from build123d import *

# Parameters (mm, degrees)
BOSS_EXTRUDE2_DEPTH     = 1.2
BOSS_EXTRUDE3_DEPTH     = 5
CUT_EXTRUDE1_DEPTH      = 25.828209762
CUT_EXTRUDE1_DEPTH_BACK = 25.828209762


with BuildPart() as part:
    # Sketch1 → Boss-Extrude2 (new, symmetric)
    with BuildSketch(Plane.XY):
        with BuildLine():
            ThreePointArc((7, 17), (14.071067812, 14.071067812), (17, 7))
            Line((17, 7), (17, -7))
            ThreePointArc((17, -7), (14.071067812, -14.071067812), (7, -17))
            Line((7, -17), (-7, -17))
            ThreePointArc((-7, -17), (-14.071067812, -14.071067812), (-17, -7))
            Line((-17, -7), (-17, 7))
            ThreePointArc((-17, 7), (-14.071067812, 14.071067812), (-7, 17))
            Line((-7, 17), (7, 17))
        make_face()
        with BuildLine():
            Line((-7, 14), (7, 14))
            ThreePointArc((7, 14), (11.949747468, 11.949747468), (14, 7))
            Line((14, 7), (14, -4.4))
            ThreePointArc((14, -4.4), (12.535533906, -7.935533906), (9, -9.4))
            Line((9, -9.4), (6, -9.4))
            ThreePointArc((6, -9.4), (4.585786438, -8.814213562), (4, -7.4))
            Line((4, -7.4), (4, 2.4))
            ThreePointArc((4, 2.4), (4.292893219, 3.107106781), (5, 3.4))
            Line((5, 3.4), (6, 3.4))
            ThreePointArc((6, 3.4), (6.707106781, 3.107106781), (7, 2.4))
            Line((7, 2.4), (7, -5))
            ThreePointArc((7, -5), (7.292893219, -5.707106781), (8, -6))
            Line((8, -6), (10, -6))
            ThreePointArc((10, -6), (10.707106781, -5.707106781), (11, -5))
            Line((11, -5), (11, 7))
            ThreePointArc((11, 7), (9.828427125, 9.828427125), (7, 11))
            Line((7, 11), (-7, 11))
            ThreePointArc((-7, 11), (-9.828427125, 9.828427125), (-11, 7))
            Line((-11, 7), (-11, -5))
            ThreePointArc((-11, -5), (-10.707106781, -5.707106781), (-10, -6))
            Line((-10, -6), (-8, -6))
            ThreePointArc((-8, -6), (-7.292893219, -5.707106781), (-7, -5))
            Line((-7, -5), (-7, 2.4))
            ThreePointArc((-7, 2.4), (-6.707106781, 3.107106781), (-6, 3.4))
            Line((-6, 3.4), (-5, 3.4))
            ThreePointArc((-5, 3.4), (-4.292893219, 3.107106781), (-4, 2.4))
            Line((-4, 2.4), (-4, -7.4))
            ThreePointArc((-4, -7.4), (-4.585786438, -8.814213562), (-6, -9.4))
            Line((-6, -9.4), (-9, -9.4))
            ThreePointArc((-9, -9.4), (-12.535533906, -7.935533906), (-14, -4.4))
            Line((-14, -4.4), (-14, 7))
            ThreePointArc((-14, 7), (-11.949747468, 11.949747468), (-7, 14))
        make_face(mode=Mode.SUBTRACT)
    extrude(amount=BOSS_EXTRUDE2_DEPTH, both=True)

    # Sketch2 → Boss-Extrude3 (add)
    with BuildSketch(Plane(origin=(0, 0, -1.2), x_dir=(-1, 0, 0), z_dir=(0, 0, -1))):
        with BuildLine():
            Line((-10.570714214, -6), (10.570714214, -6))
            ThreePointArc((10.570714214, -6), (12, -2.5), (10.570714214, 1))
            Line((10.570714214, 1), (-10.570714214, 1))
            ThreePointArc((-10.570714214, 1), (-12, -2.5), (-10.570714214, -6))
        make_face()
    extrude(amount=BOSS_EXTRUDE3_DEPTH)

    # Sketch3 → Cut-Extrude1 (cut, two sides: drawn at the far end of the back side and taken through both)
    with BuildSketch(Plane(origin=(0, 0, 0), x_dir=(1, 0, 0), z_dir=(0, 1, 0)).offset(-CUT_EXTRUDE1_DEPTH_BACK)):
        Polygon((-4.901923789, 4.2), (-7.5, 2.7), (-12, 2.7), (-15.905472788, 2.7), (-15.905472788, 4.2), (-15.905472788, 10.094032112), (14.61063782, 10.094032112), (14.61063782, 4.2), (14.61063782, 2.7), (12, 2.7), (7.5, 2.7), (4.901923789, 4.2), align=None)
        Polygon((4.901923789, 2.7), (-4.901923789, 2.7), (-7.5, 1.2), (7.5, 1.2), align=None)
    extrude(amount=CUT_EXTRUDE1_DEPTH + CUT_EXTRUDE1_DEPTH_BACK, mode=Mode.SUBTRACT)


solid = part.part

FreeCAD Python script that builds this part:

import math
import FreeCAD as App
import Part
import Sketcher

V = App.Vector
Q = App.Units.Quantity


def add_polygon(sketch, points):
    """Adds a closed chain of lines whose ends are joined by coincident constraints."""
    first, n = sketch.GeometryCount, len(points)
    for a, b in zip(points, points[1:] + points[:1]):
        sketch.addGeometry(Part.LineSegment(App.Vector(*a, 0), App.Vector(*b, 0)), False)
    for i in range(n):
        sketch.addConstraint(Sketcher.Constraint("Coincident", first + i, 2, first + (i + 1) % n, 1))

doc = App.newDocument("Part")
params = doc.addObject("Spreadsheet::Sheet", "Params")
for row, (alias, value) in enumerate([
    ("sketch1_radius", "10 mm"),
    ("sketch1_radius2", "7 mm"),
    ("sketch1_radius3", "5 mm"),
    ("sketch1_radius4", "2 mm"),
    ("sketch1_radius5", "1 mm"),
    ("pad1_length", "2.4 mm"),
    ("sketch2_radius", "5 mm"),
    ("pad2_length", "5 mm"),
    ("sketch3_width", "15 mm"),
    ("sketch3_length", "3 mm"),
], start=1):
    params.set(f"A{row}", alias)
    params.set(f"B{row}", "=" + value)
    params.setAlias(f"B{row}", alias)

body = doc.addObject("PartDesign::Body", "Body")

# Sketch on XY plane
sketch1 = body.newObject("Sketcher::SketchObject", "Sketch")
sketch1.AttachmentSupport = (doc.getObject("XY_Plane"), [""])
sketch1.MapMode = "FlatFace"
sketch1.addGeometry([
    Part.ArcOfCircle(Part.Circle(V(7, 7, 0), V(0, 0, 1), 10), math.radians(0), math.radians(90)),  # 0
    Part.LineSegment(V(7, 17, 0), V(-7, 17, 0)),  # 1
    Part.ArcOfCircle(Part.Circle(V(-7, 7, 0), V(0, 0, 1), 10), math.radians(90), math.radians(180)),  # 2
    Part.LineSegment(V(-17, 7, 0), V(-17, -7, 0)),  # 3
    Part.ArcOfCircle(Part.Circle(V(-7, -7, 0), V(0, 0, 1), 10), math.radians(180), math.radians(270)),  # 4
    Part.LineSegment(V(-7, -17, 0), V(7, -17, 0)),  # 5
    Part.ArcOfCircle(Part.Circle(V(7, -7, 0), V(0, 0, 1), 10), math.radians(-90), math.radians(0)),  # 6
    Part.LineSegment(V(17, -7, 0), V(17, 7, 0)),  # 7
    Part.LineSegment(V(-7, 14, 0), V(7, 14, 0)),  # 8
    Part.ArcOfCircle(Part.Circle(V(7, 7, 0), V(0, 0, 1), 7), math.radians(0), math.radians(90)),  # 9
    Part.LineSegment(V(14, 7, 0), V(14, -4.4, 0)),  # 10
    Part.ArcOfCircle(Part.Circle(V(9, -4.4, 0), V(0, 0, 1), 5), math.radians(-90), math.radians(0)),  # 11
    Part.LineSegment(V(9, -9.4, 0), V(6, -9.4, 0)),  # 12
    Part.ArcOfCircle(Part.Circle(V(6, -7.4, 0), V(0, 0, 1), 2), math.radians(-180), math.radians(-90)),  # 13
    Part.LineSegment(V(4, -7.4, 0), V(4, 2.4, 0)),  # 14
    Part.ArcOfCircle(Part.Circle(V(5, 2.4, 0), V(0, 0, 1), 1), math.radians(90), math.radians(180)),  # 15
    Part.LineSegment(V(5, 3.4, 0), V(6, 3.4, 0)),  # 16
    Part.ArcOfCircle(Part.Circle(V(6, 2.4, 0), V(0, 0, 1), 1), math.radians(0), math.radians(90)),  # 17
    Part.LineSegment(V(7, 2.4, 0), V(7, -5, 0)),  # 18
    Part.ArcOfCircle(Part.Circle(V(8, -5, 0), V(0, 0, 1), 1), math.radians(-180), math.radians(-90)),  # 19
    Part.LineSegment(V(8, -6, 0), V(10, -6, 0)),  # 20
    Part.ArcOfCircle(Part.Circle(V(10, -5, 0), V(0, 0, 1), 1), math.radians(-90), math.radians(0)),  # 21
    Part.LineSegment(V(11, -5, 0), V(11, 7, 0)),  # 22
    Part.ArcOfCircle(Part.Circle(V(7, 7, 0), V(0, 0, 1), 4), math.radians(0), math.radians(90)),  # 23
    Part.LineSegment(V(7, 11, 0), V(-7, 11, 0)),  # 24
    Part.ArcOfCircle(Part.Circle(V(-7, 7, 0), V(0, 0, 1), 4), math.radians(90), math.radians(180)),  # 25
    Part.LineSegment(V(-11, 7, 0), V(-11, -5, 0)),  # 26
    Part.ArcOfCircle(Part.Circle(V(-10, -5, 0), V(0, 0, 1), 1), math.radians(-180), math.radians(-90)),  # 27
    Part.LineSegment(V(-10, -6, 0), V(-8, -6, 0)),  # 28
    Part.ArcOfCircle(Part.Circle(V(-8, -5, 0), V(0, 0, 1), 1), math.radians(-90), math.radians(0)),  # 29
    Part.LineSegment(V(-7, -5, 0), V(-7, 2.4, 0)),  # 30
    Part.ArcOfCircle(Part.Circle(V(-6, 2.4, 0), V(0, 0, 1), 1), math.radians(90), math.radians(180)),  # 31
    Part.LineSegment(V(-6, 3.4, 0), V(-5, 3.4, 0)),  # 32
    Part.ArcOfCircle(Part.Circle(V(-5, 2.4, 0), V(0, 0, 1), 1), math.radians(0), math.radians(90)),  # 33
    Part.LineSegment(V(-4, 2.4, 0), V(-4, -7.4, 0)),  # 34
    Part.ArcOfCircle(Part.Circle(V(-6, -7.4, 0), V(0, 0, 1), 2), math.radians(-90), math.radians(0)),  # 35
    Part.LineSegment(V(-6, -9.4, 0), V(-9, -9.4, 0)),  # 36
    Part.ArcOfCircle(Part.Circle(V(-9, -4.4, 0), V(0, 0, 1), 5), math.radians(180), math.radians(270)),  # 37
    Part.LineSegment(V(-14, -4.4, 0), V(-14, 7, 0)),  # 38
    Part.ArcOfCircle(Part.Circle(V(-7, 7, 0), V(0, 0, 1), 7), math.radians(90), math.radians(180)),  # 39
], False)
sketch1.addConstraint([
    Sketcher.Constraint("Tangent", 0, 2, 1, 1),
    Sketcher.Constraint("Tangent", 1, 2, 2, 1),
    Sketcher.Constraint("Tangent", 2, 2, 3, 1),
    Sketcher.Constraint("Tangent", 3, 2, 4, 1),
    Sketcher.Constraint("Tangent", 4, 2, 5, 1),
    Sketcher.Constraint("Tangent", 5, 2, 6, 1),
    Sketcher.Constraint("Tangent", 6, 2, 7, 1),
    Sketcher.Constraint("Tangent", 7, 2, 0, 1),
    Sketcher.Constraint("Tangent", 8, 2, 9, 2),
    Sketcher.Constraint("Tangent", 9, 1, 10, 1),
    Sketcher.Constraint("Tangent", 10, 2, 11, 2),
    Sketcher.Constraint("Tangent", 11, 1, 12, 1),
    Sketcher.Constraint("Tangent", 12, 2, 13, 2),
    Sketcher.Constraint("Tangent", 13, 1, 14, 1),
    Sketcher.Constraint("Tangent", 14, 2, 15, 2),
    Sketcher.Constraint("Tangent", 15, 1, 16, 1),
    Sketcher.Constraint("Tangent", 16, 2, 17, 2),
    Sketcher.Constraint("Tangent", 17, 1, 18, 1),
    Sketcher.Constraint("Tangent", 18, 2, 19, 1),
    Sketcher.Constraint("Tangent", 19, 2, 20, 1),
    Sketcher.Constraint("Tangent", 20, 2, 21, 1),
    Sketcher.Constraint("Tangent", 21, 2, 22, 1),
    Sketcher.Constraint("Tangent", 22, 2, 23, 1),
    Sketcher.Constraint("Tangent", 23, 2, 24, 1),
    Sketcher.Constraint("Tangent", 24, 2, 25, 1),
    Sketcher.Constraint("Tangent", 25, 2, 26, 1),
    Sketcher.Constraint("Tangent", 26, 2, 27, 1),
    Sketcher.Constraint("Tangent", 27, 2, 28, 1),
    Sketcher.Constraint("Tangent", 28, 2, 29, 1),
    Sketcher.Constraint("Tangent", 29, 2, 30, 1),
    Sketcher.Constraint("Tangent", 30, 2, 31, 2),
    Sketcher.Constraint("Tangent", 31, 1, 32, 1),
    Sketcher.Constraint("Tangent", 32, 2, 33, 2),
    Sketcher.Constraint("Tangent", 33, 1, 34, 1),
    Sketcher.Constraint("Tangent", 34, 2, 35, 2),
    Sketcher.Constraint("Tangent", 35, 1, 36, 1),
    Sketcher.Constraint("Tangent", 36, 2, 37, 2),
    Sketcher.Constraint("Tangent", 37, 1, 38, 1),
    Sketcher.Constraint("Tangent", 38, 2, 39, 2),
    Sketcher.Constraint("Tangent", 39, 1, 8, 1),
    Sketcher.Constraint("Horizontal", 1),
    Sketcher.Constraint("Vertical", 3),
    Sketcher.Constraint("Horizontal", 5),
    Sketcher.Constraint("Vertical", 7),
    Sketcher.Constraint("Horizontal", 8),
    Sketcher.Constraint("Vertical", 10),
    Sketcher.Constraint("Horizontal", 12),
    Sketcher.Constraint("Vertical", 14),
    Sketcher.Constraint("Horizontal", 16),
    Sketcher.Constraint("Vertical", 18),
    Sketcher.Constraint("Horizontal", 20),
    Sketcher.Constraint("Vertical", 22),
    Sketcher.Constraint("Horizontal", 24),
    Sketcher.Constraint("Vertical", 26),
    Sketcher.Constraint("Horizontal", 28),
    Sketcher.Constraint("Vertical", 30),
    Sketcher.Constraint("Horizontal", 32),
    Sketcher.Constraint("Vertical", 34),
    Sketcher.Constraint("Horizontal", 36),
    Sketcher.Constraint("Vertical", 38),
    Sketcher.Constraint("Coincident", 9, 3, 0, 3),
    Sketcher.Constraint("Coincident", 23, 3, 0, 3),
    Sketcher.Constraint("Coincident", 25, 3, 2, 3),
    Sketcher.Constraint("Coincident", 39, 3, 2, 3),
    Sketcher.Constraint("Equal", 0, 2),
    Sketcher.Constraint("Equal", 2, 4),
    Sketcher.Constraint("Equal", 4, 6),
    Sketcher.Constraint("Equal", 15, 17),
    Sketcher.Constraint("Equal", 17, 19),
    Sketcher.Constraint("Equal", 19, 21),
    Sketcher.Constraint("Equal", 21, 27),
    Sketcher.Constraint("Equal", 27, 29),
    Sketcher.Constraint("Equal", 29, 31),
    Sketcher.Constraint("Equal", 31, 33),
    Sketcher.Constraint("Equal", 13, 35),
    Sketcher.Constraint("Equal", 11, 37),
    Sketcher.Constraint("Symmetric", 0, 3, 4, 3, -1, 1),
    Sketcher.Constraint("Symmetric", 19, 3, 29, 3, -2),
    Sketcher.Constraint("Symmetric", 15, 3, 33, 3, -2),
    Sketcher.Constraint("Horizontal", 13, 3, 35, 3),
    Sketcher.Constraint("Vertical", 13, 3, 17, 3),
    Sketcher.Constraint("Vertical", 8, 2, 17, 1),
    Sketcher.Constraint("Equal", 24, 3),
    Sketcher.Constraint("Radius", 0, 10.0),
    Sketcher.Constraint("Radius", 9, 7.0),
    Sketcher.Constraint("Radius", 11, 5.0),
    Sketcher.Constraint("Radius", 13, 2.0),
    Sketcher.Constraint("Radius", 15, 1.0),
    Sketcher.Constraint("Radius", 23, 4.0),
    Sketcher.Constraint("DistanceX", 1, 2, 1, 1, 14.0),
    Sketcher.Constraint("DistanceY", 22, 1, 22, 2, 12.0),
    Sketcher.Constraint("DistanceY", 10, 2, 10, 1, 11.4),
    Sketcher.Constraint("DistanceY", 14, 1, 14, 2, 9.8),
])
sketch1.setExpression("Constraints[83]", "Params.sketch1_radius")
sketch1.setExpression("Constraints[84]", "Params.sketch1_radius2")
sketch1.setExpression("Constraints[85]", "Params.sketch1_radius3")
sketch1.setExpression("Constraints[86]", "Params.sketch1_radius4")
sketch1.setExpression("Constraints[87]", "Params.sketch1_radius5")
pad1 = body.newObject("PartDesign::Pad", "Pad")
pad1.Profile = sketch1
pad1.setExpression("Length", "Params.pad1_length")
pad1.Midplane = True

# Sketch on XY plane
sketch2 = body.newObject("Sketcher::SketchObject", "Sketch001")
sketch2.AttachmentSupport = (doc.getObject("XY_Plane"), [""])
sketch2.MapMode = "FlatFace"
sketch2.AttachmentOffset = App.Placement(V(0, 0, -1.2), App.Rotation())
sketch2.addGeometry([
    Part.LineSegment(V(10.570714, -6, 0), V(-10.570714, -6, 0)),
    Part.ArcOfCircle(Part.Circle(V(-7, -2.5, 0), V(0, 0, 1), 5), math.radians(135.572996), math.radians(224.427004)),
    Part.LineSegment(V(-10.570714, 1, 0), V(10.570714, 1, 0)),
    Part.ArcOfCircle(Part.Circle(V(7, -2.5, 0), V(0, 0, 1), 5), math.radians(-44.427004), math.radians(44.427004)),
], False)
sketch2.addConstraint([
    Sketcher.Constraint("Coincident", 0, 2, 1, 2),
    Sketcher.Constraint("Coincident", 1, 1, 2, 1),
    Sketcher.Constraint("Coincident", 2, 2, 3, 2),
    Sketcher.Constraint("Coincident", 3, 1, 0, 1),
    Sketcher.Constraint("Horizontal", 0),
    Sketcher.Constraint("Horizontal", 2),
    Sketcher.Constraint("Equal", 1, 3),
    Sketcher.Constraint("Symmetric", 1, 3, 3, 3, -2),
    Sketcher.Constraint("Vertical", 0, 2, 1, 1),
    Sketcher.Constraint("Radius", 1, 5.0),
    Sketcher.Constraint("DistanceX", 1, 3, -1, 1, 7.0),
    Sketcher.Constraint("DistanceY", 0, 2, -1, 1, 6.0),
    Sketcher.Constraint("DistanceY", -1, 1, 1, 1, 1.0),
])
sketch2.setExpression("Constraints[9]", "Params.sketch2_radius")
pad2 = body.newObject("PartDesign::Pad", "Pad001")
pad2.Profile = sketch2
pad2.setExpression("Length", "Params.pad2_length")
pad2.Reversed = True

# Sketch on XZ plane
sketch3 = body.newObject("Sketcher::SketchObject", "Sketch002")
sketch3.AttachmentSupport = (doc.getObject("XZ_Plane"), [""])
sketch3.MapMode = "FlatFace"
add_polygon(sketch3, [(-7.5, -2.7), (-4.901924, -4.2), (4.901924, -4.2), (7.5, -2.7), (14.610638, -2.7), (14.610638, -10.094032), (-15.905473, -10.094032), (-15.905473, -2.7)])  # lines 0-7
add_polygon(sketch3, [(4.901924, -2.7), (-4.901924, -2.7), (-7.5, -1.2), (7.5, -1.2)])  # lines 8-11
sketch3.addConstraint([
    Sketcher.Constraint("Horizontal", 1),
    Sketcher.Constraint("Horizontal", 3),
    Sketcher.Constraint("Vertical", 4),
    Sketcher.Constraint("Horizontal", 5),
    Sketcher.Constraint("Vertical", 6),
    Sketcher.Constraint("Horizontal", 7),
    Sketcher.Constraint("Horizontal", 8),
    Sketcher.Constraint("Horizontal", 10),
    Sketcher.Constraint("Symmetric", 2, 2, 7, 2, -2),
    Sketcher.Constraint("Parallel", 0, 9),
    Sketcher.Constraint("Parallel", 2, 11),
    Sketcher.Constraint("Horizontal", 7, 2, 8, 2),
    Sketcher.Constraint("Vertical", 0, 2, 8, 2),
    Sketcher.Constraint("Vertical", 7, 2, 9, 2),
    Sketcher.Constraint("Vertical", 2, 2, 10, 2),
    Sketcher.Constraint("Equal", 0, 2),
    Sketcher.Constraint("DistanceX", 10, 1, 10, 2, 15.0),
    Sketcher.Constraint("Angle", 0, Q("-30 deg")),
    Sketcher.Constraint("Distance", 0, 3.0),
    Sketcher.Constraint("DistanceY", 0, 2, -1, 1, 4.2),
    Sketcher.Constraint("DistanceX", 5, 2, 5, 1, 30.516111),
    Sketcher.Constraint("DistanceX", 3, 1, 3, 2, 7.110638),
    Sketcher.Constraint("DistanceY", 4, 2, 4, 1, 7.394032),
])
sketch3.setExpression("Constraints[28]", "Params.sketch3_width")
sketch3.setExpression("Constraints[30]", "Params.sketch3_length")
pocket1 = body.newObject("PartDesign::Pocket", "Pocket")
pocket1.Profile = sketch3
pocket1.Type = "ThroughAll"
pocket1.Midplane = True

doc.recompute()
